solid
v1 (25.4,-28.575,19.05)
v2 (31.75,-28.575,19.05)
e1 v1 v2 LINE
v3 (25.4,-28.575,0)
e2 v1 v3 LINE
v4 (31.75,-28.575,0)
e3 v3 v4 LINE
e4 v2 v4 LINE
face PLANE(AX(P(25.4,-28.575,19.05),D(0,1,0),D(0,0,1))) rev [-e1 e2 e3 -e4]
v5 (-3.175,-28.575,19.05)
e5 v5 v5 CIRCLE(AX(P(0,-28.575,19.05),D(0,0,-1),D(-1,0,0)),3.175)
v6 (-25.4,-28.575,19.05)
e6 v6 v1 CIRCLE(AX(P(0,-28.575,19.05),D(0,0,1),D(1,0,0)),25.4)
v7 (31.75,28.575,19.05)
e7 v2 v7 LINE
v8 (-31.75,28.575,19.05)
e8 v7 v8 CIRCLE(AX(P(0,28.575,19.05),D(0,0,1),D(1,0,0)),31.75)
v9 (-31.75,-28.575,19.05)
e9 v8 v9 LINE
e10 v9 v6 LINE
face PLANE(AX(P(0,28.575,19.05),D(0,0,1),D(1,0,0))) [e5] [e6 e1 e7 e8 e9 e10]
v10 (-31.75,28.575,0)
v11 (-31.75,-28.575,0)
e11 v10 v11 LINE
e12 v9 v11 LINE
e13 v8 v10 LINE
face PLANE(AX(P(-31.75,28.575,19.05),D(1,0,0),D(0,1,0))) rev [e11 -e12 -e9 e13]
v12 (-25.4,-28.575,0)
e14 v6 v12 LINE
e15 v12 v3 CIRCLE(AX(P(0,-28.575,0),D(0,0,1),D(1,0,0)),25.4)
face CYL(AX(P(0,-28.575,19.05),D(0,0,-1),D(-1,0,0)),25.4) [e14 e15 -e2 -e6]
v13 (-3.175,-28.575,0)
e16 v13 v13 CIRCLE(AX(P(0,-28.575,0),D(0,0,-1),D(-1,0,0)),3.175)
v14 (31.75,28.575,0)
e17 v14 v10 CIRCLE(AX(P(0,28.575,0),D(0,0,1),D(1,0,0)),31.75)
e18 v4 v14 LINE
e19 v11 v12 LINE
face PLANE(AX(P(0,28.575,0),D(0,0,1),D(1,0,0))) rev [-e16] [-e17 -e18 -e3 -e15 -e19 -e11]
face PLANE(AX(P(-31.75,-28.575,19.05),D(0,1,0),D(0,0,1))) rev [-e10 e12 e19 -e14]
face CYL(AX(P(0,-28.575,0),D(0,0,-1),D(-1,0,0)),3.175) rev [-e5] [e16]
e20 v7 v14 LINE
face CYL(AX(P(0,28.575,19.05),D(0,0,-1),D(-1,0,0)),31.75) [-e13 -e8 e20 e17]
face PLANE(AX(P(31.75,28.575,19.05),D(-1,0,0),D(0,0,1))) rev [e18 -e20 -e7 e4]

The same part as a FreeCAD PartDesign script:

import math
import FreeCAD as App
import Part
import Sketcher
from FreeCAD import Vector
Q = App.Units.Quantity

doc = App.newDocument("Part")
body = doc.addObject("PartDesign::Body", "Body")

sketch1 = body.newObject("Sketcher::SketchObject", "Sketch")
sketch1.AttachmentSupport = (doc.getObject("XY_Plane"), [""])
sketch1.MapMode = "FlatFace"
sketch1.addGeometry([
    Part.LineSegment(Vector(32, -29, 0), Vector(32, 29, 0)),
    Part.ArcOfCircle(Part.Circle(Vector(0, 29, 0), Vector(0, 0, 1), 32), math.radians(0), math.radians(180)),
    Part.LineSegment(Vector(-32, 29, 0), Vector(-32, -29, 0)),
    Part.LineSegment(Vector(-32, -29, 0), Vector(-25, -29, 0)),
    Part.ArcOfCircle(Part.Circle(Vector(0, -29, 0), Vector(0, 0, 1), 25), math.radians(180), math.radians(360)),
    Part.LineSegment(Vector(25, -29, 0), Vector(32, -29, 0)),
], False)
sketch1.addConstraint([
    Sketcher.Constraint("Tangent", 0, 2, 1, 1),
    Sketcher.Constraint("Tangent", 1, 2, 2, 1),
    Sketcher.Constraint("Coincident", 2, 2, 3, 1),
    Sketcher.Constraint("Coincident", 3, 2, 4, 1),
    Sketcher.Constraint("Coincident", 4, 2, 5, 1),
    Sketcher.Constraint("Coincident", 5, 2, 0, 1),
    Sketcher.Constraint("Vertical", 0),
    Sketcher.Constraint("Vertical", 2),
    Sketcher.Constraint("Horizontal", 3),
    Sketcher.Constraint("Horizontal", 5),
    Sketcher.Constraint("Symmetric", 1, 3, 4, 3, -1, 1),
    Sketcher.Constraint("Symmetric", 0, 2, 2, 2, -1, 1),
    Sketcher.Constraint("Horizontal", 3, 2, 4, 2),
    Sketcher.Constraint("Radius", 4, Q("1 in")),
    Sketcher.Constraint("Radius", 1, Q("1.25 in")),
    Sketcher.Constraint("DistanceY", 0, 1, 0, 2, Q("2.25 in")),
])
pad1 = body.newObject("PartDesign::Pad", "Pad")
pad1.Profile = sketch1
pad1.Length = Q("0.75 in")

sketch2 = body.newObject("Sketcher::SketchObject", "Sketch001")
sketch2.AttachmentSupport = (doc.getObject("XY_Plane"), [""])
sketch2.MapMode = "FlatFace"
sketch2.addGeometry(Part.Circle(Vector(0, -28.6, 0), Vector(0, 0, 1), 3.2), False)
sketch2.addConstraint([
    Sketcher.Constraint("PointOnObject", 0, 3, -2),
    Sketcher.Constraint("Diameter", 0, Q("0.25 in")),
    Sketcher.Constraint("DistanceY", 0, 3, -1, 1, Q("1.125 in")),
])
doc.recompute()
hole = body.newObject("PartDesign::Hole", "Hole")
hole.Profile = sketch2
hole.ThreadType = "None"
hole.Diameter = Q("0.25 in")
hole.DepthType = "ThroughAll"
hole.Reversed = True

doc.recompute()
